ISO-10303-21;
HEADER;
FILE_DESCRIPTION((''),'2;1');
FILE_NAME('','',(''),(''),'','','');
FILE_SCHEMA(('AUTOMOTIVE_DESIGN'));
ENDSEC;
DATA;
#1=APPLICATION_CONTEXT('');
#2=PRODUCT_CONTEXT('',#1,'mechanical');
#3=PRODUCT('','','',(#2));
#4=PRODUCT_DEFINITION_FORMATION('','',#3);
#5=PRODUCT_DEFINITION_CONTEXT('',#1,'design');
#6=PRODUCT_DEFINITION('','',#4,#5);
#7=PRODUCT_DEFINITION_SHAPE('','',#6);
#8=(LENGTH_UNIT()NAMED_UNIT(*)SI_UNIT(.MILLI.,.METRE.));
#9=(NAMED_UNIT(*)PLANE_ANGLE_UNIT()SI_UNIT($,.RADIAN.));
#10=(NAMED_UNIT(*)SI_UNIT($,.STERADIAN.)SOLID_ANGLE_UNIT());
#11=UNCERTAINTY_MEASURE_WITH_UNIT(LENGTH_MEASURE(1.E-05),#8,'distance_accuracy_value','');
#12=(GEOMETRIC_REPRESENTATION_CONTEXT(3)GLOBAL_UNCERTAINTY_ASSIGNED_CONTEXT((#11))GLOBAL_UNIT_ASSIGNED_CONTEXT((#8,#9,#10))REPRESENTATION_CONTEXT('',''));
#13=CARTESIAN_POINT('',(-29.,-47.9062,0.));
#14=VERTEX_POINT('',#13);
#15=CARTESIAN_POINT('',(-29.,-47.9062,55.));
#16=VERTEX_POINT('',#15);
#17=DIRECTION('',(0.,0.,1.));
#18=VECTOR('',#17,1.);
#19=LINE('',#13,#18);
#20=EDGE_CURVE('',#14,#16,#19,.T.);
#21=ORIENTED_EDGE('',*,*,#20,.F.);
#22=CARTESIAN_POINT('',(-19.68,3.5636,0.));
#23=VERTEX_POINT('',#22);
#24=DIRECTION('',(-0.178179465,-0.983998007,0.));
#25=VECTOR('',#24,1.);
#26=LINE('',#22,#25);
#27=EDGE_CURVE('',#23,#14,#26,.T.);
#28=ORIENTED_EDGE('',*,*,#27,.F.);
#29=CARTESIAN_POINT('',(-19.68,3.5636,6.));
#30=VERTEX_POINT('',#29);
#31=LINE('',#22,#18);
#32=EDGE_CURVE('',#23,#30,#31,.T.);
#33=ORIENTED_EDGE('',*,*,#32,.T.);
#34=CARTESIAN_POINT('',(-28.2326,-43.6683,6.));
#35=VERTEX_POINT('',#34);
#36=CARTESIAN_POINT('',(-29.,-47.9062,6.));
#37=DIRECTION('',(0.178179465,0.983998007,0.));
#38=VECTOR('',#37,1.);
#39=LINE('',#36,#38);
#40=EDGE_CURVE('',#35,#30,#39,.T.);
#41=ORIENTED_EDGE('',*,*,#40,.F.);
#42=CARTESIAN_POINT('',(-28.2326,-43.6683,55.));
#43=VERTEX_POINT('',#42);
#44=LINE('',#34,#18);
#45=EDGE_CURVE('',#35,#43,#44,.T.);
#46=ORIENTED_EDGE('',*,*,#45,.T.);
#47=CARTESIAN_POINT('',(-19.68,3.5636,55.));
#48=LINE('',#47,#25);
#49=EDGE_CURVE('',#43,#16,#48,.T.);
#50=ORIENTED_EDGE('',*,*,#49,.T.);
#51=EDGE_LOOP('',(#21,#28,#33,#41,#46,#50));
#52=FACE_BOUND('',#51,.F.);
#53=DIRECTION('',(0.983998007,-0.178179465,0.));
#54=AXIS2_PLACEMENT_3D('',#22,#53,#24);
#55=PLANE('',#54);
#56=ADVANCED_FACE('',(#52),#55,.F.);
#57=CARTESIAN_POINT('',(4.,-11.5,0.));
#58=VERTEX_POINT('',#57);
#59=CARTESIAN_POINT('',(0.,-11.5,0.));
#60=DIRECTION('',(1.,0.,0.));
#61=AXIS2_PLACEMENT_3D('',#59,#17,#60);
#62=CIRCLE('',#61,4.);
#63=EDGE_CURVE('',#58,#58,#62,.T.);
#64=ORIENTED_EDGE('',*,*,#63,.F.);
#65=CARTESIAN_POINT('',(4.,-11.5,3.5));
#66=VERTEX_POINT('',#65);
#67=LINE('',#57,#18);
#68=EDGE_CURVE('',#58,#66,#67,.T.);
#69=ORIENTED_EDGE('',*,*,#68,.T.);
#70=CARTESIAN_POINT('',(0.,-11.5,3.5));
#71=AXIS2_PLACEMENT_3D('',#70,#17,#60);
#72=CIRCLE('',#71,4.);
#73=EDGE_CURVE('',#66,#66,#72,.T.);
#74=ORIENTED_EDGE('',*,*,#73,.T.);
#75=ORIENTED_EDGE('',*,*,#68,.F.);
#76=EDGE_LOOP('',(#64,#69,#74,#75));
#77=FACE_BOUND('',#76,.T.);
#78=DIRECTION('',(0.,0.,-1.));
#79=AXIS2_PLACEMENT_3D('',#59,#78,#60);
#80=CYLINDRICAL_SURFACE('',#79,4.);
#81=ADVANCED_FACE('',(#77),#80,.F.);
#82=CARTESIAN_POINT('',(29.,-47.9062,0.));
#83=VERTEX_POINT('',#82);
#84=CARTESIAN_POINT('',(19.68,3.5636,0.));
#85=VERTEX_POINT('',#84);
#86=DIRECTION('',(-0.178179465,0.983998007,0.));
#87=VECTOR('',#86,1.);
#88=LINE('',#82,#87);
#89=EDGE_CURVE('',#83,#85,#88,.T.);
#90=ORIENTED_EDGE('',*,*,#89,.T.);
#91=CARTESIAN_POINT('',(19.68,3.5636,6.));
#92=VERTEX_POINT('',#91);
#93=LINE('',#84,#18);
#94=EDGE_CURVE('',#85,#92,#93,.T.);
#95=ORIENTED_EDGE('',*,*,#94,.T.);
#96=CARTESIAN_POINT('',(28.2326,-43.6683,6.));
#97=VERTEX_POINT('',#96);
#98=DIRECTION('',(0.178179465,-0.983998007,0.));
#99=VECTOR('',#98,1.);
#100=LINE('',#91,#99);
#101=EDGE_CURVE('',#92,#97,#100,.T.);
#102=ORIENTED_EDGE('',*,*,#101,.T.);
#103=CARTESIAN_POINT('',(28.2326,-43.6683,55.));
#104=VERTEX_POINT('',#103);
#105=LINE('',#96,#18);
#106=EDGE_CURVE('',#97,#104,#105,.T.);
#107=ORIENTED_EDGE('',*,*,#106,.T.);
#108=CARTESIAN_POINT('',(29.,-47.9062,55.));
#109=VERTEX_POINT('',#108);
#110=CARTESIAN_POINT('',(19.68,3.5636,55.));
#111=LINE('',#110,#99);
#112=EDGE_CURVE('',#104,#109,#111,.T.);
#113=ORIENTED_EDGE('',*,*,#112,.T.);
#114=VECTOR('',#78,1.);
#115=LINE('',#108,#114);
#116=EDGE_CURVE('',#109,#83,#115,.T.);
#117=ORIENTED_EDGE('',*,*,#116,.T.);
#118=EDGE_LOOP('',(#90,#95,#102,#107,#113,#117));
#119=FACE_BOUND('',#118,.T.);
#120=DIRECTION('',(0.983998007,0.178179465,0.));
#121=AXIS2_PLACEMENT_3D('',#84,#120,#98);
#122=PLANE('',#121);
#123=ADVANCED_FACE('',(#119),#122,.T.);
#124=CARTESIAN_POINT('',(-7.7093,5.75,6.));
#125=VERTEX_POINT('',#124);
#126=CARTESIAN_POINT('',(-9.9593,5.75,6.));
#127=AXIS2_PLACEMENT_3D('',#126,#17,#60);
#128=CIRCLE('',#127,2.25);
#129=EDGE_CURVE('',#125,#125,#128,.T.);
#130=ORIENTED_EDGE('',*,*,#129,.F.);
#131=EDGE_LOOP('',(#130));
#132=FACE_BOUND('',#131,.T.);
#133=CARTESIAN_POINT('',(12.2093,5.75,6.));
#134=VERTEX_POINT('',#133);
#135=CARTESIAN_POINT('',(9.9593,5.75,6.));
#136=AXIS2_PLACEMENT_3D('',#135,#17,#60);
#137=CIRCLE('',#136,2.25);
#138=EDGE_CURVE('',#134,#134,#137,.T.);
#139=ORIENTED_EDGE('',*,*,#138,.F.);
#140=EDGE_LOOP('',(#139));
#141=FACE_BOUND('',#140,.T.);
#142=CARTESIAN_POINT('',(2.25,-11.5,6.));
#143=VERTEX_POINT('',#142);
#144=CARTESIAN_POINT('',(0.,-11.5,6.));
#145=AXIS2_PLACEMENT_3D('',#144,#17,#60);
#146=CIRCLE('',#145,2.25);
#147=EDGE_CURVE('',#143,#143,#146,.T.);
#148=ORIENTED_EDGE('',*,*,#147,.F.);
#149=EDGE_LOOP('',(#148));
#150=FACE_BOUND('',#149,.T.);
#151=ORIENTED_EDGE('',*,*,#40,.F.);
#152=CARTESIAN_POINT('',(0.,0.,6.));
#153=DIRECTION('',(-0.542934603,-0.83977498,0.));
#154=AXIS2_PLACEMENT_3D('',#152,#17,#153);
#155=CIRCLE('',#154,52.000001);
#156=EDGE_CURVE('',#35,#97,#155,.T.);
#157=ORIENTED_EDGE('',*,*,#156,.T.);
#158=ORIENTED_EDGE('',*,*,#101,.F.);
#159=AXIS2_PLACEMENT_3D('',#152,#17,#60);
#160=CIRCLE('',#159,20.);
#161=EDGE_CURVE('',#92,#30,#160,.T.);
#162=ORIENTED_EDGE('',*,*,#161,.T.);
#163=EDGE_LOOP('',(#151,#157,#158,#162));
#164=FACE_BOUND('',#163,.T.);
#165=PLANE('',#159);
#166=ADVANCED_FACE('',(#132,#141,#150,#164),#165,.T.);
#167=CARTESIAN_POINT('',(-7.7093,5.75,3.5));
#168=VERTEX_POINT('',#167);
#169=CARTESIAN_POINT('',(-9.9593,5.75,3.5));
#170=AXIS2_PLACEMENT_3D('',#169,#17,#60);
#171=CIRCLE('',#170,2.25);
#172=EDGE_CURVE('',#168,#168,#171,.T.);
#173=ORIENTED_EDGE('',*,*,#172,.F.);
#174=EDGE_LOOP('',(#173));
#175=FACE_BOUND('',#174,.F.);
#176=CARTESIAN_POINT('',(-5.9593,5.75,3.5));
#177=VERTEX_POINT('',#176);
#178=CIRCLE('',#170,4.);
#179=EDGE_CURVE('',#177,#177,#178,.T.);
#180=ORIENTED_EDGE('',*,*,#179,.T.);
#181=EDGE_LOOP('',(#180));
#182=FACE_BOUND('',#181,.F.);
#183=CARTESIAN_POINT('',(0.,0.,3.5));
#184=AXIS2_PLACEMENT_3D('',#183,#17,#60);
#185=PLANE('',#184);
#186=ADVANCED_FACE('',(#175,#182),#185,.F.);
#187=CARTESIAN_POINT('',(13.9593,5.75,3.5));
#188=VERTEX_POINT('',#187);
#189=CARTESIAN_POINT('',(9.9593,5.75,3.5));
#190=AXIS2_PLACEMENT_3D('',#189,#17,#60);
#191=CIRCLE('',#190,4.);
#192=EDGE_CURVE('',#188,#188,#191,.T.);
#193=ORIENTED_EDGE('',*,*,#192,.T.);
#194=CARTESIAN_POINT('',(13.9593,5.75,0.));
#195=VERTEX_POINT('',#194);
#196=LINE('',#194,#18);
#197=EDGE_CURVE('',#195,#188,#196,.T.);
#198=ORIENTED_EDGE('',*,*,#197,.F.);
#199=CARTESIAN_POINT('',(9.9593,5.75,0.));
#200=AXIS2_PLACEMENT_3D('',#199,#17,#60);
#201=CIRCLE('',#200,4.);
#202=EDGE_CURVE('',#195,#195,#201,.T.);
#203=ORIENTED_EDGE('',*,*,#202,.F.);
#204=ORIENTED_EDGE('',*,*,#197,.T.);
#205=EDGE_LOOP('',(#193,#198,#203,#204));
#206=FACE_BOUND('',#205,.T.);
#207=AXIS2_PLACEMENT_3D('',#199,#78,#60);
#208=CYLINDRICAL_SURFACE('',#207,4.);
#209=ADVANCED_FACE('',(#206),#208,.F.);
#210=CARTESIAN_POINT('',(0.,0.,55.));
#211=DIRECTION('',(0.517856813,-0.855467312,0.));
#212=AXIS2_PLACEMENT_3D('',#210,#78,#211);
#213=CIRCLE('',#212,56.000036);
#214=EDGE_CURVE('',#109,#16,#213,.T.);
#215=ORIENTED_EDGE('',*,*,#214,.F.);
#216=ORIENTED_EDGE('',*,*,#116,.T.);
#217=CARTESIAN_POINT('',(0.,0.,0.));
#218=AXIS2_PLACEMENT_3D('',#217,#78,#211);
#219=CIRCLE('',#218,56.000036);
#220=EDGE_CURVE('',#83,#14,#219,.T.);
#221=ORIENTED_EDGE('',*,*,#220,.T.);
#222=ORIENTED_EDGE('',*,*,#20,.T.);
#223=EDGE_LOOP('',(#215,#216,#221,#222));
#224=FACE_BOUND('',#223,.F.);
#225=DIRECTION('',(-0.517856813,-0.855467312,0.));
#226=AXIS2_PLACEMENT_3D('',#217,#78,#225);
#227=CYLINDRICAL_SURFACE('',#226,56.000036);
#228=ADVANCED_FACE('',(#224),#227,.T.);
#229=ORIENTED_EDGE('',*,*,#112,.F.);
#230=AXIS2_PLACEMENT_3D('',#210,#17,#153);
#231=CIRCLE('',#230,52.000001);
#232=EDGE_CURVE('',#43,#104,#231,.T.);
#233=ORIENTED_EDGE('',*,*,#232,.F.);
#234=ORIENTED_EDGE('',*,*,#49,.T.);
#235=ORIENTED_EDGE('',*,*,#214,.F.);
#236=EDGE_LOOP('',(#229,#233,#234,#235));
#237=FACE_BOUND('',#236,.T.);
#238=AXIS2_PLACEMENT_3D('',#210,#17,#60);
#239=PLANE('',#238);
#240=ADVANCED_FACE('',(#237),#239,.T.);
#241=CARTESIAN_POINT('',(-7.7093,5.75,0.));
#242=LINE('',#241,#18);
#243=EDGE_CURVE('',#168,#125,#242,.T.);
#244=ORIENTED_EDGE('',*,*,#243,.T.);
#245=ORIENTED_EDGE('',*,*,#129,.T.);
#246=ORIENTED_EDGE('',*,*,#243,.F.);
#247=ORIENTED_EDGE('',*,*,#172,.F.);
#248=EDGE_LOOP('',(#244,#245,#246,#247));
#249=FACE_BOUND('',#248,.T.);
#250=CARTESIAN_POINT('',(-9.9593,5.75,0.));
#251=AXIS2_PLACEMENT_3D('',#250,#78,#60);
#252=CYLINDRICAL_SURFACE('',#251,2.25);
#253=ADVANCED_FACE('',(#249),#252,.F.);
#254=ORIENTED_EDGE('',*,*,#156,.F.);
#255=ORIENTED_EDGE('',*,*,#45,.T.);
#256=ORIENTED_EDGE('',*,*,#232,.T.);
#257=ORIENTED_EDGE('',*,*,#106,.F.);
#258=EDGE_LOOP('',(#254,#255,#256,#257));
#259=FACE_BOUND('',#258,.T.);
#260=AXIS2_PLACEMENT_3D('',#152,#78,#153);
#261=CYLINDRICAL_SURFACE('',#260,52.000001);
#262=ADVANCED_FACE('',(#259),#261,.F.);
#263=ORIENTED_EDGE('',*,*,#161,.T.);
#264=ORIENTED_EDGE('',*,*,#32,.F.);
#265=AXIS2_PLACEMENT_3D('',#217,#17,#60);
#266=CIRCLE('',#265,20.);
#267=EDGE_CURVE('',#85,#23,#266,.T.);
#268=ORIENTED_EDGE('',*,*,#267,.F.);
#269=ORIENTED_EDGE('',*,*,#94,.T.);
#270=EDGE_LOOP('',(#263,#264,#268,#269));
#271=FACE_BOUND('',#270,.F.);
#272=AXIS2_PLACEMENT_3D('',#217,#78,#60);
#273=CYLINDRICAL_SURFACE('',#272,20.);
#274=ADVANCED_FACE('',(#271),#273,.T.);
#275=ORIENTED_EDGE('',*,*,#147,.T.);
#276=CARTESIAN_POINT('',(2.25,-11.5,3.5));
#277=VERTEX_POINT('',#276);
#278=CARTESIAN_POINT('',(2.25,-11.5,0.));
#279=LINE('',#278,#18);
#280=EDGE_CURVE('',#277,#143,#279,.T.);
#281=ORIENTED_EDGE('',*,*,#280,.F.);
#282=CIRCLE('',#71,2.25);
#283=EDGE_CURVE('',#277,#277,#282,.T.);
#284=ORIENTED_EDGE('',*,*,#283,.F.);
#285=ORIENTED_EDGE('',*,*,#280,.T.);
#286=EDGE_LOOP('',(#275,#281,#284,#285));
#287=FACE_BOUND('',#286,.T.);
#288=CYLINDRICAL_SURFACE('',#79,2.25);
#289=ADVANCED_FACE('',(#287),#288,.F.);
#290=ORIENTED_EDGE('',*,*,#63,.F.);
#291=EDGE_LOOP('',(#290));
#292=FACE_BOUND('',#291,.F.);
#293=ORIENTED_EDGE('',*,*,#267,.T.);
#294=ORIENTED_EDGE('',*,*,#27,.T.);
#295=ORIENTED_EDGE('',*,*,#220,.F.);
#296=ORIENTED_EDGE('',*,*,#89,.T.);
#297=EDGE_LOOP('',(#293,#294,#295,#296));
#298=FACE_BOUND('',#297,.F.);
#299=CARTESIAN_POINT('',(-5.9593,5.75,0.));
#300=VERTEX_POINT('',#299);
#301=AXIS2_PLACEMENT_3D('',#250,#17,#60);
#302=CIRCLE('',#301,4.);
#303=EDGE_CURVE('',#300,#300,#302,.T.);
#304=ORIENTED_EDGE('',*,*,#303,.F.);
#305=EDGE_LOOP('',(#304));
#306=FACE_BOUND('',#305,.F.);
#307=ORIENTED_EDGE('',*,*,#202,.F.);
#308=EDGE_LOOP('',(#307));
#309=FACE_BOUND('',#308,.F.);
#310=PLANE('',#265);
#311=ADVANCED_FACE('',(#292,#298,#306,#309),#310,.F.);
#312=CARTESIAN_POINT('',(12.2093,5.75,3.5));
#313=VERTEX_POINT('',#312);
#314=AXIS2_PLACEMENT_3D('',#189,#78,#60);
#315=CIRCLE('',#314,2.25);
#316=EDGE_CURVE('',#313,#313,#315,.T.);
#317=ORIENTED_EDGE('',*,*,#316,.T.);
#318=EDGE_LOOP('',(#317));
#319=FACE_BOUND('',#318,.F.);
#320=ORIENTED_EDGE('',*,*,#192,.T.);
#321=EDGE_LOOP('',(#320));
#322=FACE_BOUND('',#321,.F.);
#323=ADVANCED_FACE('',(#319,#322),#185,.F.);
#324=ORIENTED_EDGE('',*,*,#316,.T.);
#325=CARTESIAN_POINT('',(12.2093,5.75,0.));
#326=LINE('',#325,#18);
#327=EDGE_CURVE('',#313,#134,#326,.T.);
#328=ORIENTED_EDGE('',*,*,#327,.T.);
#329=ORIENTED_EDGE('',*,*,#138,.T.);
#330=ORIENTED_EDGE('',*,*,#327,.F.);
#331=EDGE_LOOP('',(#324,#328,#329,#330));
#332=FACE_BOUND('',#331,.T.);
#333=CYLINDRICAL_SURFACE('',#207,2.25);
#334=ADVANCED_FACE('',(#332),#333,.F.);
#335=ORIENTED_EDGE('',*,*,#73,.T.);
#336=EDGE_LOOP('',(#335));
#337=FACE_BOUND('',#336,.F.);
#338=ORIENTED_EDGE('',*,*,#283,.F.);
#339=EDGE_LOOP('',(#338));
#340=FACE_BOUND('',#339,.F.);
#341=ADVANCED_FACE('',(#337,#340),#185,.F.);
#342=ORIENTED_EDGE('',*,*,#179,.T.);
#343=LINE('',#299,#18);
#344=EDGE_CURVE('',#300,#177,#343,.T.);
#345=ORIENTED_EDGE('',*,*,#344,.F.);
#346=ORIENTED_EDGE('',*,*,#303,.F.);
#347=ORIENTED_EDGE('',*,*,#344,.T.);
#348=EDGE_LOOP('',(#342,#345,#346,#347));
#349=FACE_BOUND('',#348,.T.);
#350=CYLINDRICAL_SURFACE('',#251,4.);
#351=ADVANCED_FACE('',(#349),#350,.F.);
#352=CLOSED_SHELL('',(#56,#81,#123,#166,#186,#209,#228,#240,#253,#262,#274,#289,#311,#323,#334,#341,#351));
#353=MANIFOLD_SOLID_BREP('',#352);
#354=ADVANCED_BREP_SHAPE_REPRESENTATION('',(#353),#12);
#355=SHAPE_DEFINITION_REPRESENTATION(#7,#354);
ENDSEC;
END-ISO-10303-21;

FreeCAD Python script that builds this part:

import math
import FreeCAD as App
import Part
import Sketcher
from FreeCAD import Vector
Q = App.Units.Quantity

doc = App.newDocument("Part")
body = doc.addObject("PartDesign::Body", "Body")

# Sketch on XY plane
sketch1 = body.newObject("Sketcher::SketchObject", "Sketch")
sketch1.AttachmentSupport = (doc.getObject("XY_Plane"), [""])
sketch1.MapMode = "FlatFace"
sketch1.addGeometry([
    Part.ArcOfCircle(Part.Circle(Vector(0, 0, 0), Vector(0, 0, 1), 20), math.radians(10), math.radians(170)),  # 0
    Part.LineSegment(Vector(-19.7, 3.6, 0), Vector(-29, -47.9, 0)),  # 1
    Part.ArcOfCircle(Part.Circle(Vector(0, 0, 0), Vector(0, 0, 1), 56), math.radians(-121), math.radians(-59)),  # 2
    Part.LineSegment(Vector(29, -47.9, 0), Vector(19.7, 3.6, 0)),  # 3
    Part.Circle(Vector(-10, 5.8, 0), Vector(0, 0, 1), 2.2),  # 4
    Part.Circle(Vector(0, -11.5, 0), Vector(0, 0, 1), 2.2),  # 5
    Part.Circle(Vector(10, 5.8, 0), Vector(0, 0, 1), 2.2),  # 6
], False)
sketch1.addConstraint([
    Sketcher.Constraint("Tangent", 0, 2, 1, 1),
    Sketcher.Constraint("Coincident", 1, 2, 2, 1),
    Sketcher.Constraint("Coincident", 2, 2, 3, 1),
    Sketcher.Constraint("Tangent", 3, 2, 0, 1),
    Sketcher.Constraint("Coincident", 0, 3, -1, 1),
    Sketcher.Constraint("Coincident", 2, 3, -1, 1),
    Sketcher.Constraint("Equal", 4, 5),
    Sketcher.Constraint("Equal", 5, 6),
    Sketcher.Constraint("Symmetric", 4, 3, 6, 3, -2),
    Sketcher.Constraint("PointOnObject", 5, 3, -2),
    Sketcher.Constraint("Horizontal", 1, 2, 2, 2),
    Sketcher.Constraint("Radius", 0, Q("20 mm")),
    Sketcher.Constraint("Radius", 2, Q("56 mm")),
    Sketcher.Constraint("Diameter", 4, Q("4.5 mm")),
    Sketcher.Constraint("DistanceX", 1, 2, 2, 2, Q("58 mm")),
    Sketcher.Constraint("DistanceY", 5, 3, -1, 1, Q("11.5 mm")),
    Sketcher.Constraint("DistanceY", -1, 1, 4, 3, Q("5.75 mm")),
    Sketcher.Constraint("DistanceX", 4, 3, -1, 1, Q("9.9593 mm")),
])
pad1 = body.newObject("PartDesign::Pad", "Pad")
pad1.Profile = sketch1
pad1.Length = 6

# Sketch on XY plane
sketch2 = body.newObject("Sketcher::SketchObject", "Sketch001")
sketch2.AttachmentSupport = (doc.getObject("XY_Plane"), [""])
sketch2.MapMode = "FlatFace"
sketch2.addGeometry([
    Part.Circle(Vector(-10, 5.8, 0), Vector(0, 0, 1), 4),  # 0
    Part.Circle(Vector(-10, 5.8, 0), Vector(0, 0, 1), 2.2),  # 1
    Part.Circle(Vector(0, -11.5, 0), Vector(0, 0, 1), 4),  # 2
    Part.Circle(Vector(0, -11.5, 0), Vector(0, 0, 1), 2.2),  # 3
    Part.Circle(Vector(10, 5.8, 0), Vector(0, 0, 1), 4),  # 4
], False)
sketch2.addConstraint([
    Sketcher.Constraint("Coincident", 1, 3, 0, 3),
    Sketcher.Constraint("Coincident", 3, 3, 2, 3),
    Sketcher.Constraint("Equal", 0, 2),
    Sketcher.Constraint("Equal", 1, 3),
    Sketcher.Constraint("Equal", 2, 4),
    Sketcher.Constraint("Symmetric", 0, 3, 4, 3, -2),
    Sketcher.Constraint("PointOnObject", 2, 3, -2),
    Sketcher.Constraint("Diameter", 0, Q("8 mm")),
    Sketcher.Constraint("Diameter", 1, Q("4.5 mm")),
    Sketcher.Constraint("DistanceY", 2, 3, -1, 1, Q("11.5 mm")),
    Sketcher.Constraint("DistanceY", -1, 1, 0, 3, Q("5.75 mm")),
    Sketcher.Constraint("DistanceX", 0, 3, -1, 1, Q("9.9593 mm")),
])
pocket1 = body.newObject("PartDesign::Pocket", "Pocket")
pocket1.Profile = sketch2
pocket1.Length = 3.5
pocket1.Reversed = True

# Sketch on XY plane
sketch3 = body.newObject("Sketcher::SketchObject", "Sketch002")
sketch3.AttachmentSupport = (doc.getObject("XY_Plane"), [""])
sketch3.MapMode = "FlatFace"
sketch3.AttachmentOffset = App.Placement(Vector(0, 0, 6), App.Rotation())
sketch3.addGeometry([
    Part.LineSegment(Vector(29, -47.9, 0), Vector(28.2, -43.7, 0)),
    Part.ArcOfCircle(Part.Circle(Vector(0, 0, 0), Vector(0, 0, 1), 52), math.radians(-123), math.radians(-57)),
    Part.LineSegment(Vector(-28.2, -43.7, 0), Vector(-29, -47.9, 0)),
    Part.ArcOfCircle(Part.Circle(Vector(0, 0, 0), Vector(0, 0, 1), 56), math.radians(-121), math.radians(-59)),
], False)
sketch3.addConstraint([
    Sketcher.Constraint("Coincident", 0, 2, 1, 2),
    Sketcher.Constraint("Coincident", 1, 1, 2, 1),
    Sketcher.Constraint("Coincident", 2, 2, 3, 1),
    Sketcher.Constraint("Coincident", 3, 2, 0, 1),
    Sketcher.Constraint("Coincident", 1, 3, -1, 1),
    Sketcher.Constraint("Coincident", 3, 3, -1, 1),
    Sketcher.Constraint("Horizontal", 0, 2, 1, 1),
    Sketcher.Constraint("Horizontal", 2, 2, 3, 2),
    Sketcher.Constraint("Radius", 1, Q("52 mm")),
    Sketcher.Constraint("Radius", 3, Q("56 mm")),
    Sketcher.Constraint("DistanceX", 2, 2, 3, 2, Q("58 mm")),
    Sketcher.Constraint("DistanceY", 2, 2, 1, 1, Q("4.238 mm")),
])
pad2 = body.newObject("PartDesign::Pad", "Pad001")
pad2.Profile = sketch3
pad2.Length = 49

doc.recompute()
